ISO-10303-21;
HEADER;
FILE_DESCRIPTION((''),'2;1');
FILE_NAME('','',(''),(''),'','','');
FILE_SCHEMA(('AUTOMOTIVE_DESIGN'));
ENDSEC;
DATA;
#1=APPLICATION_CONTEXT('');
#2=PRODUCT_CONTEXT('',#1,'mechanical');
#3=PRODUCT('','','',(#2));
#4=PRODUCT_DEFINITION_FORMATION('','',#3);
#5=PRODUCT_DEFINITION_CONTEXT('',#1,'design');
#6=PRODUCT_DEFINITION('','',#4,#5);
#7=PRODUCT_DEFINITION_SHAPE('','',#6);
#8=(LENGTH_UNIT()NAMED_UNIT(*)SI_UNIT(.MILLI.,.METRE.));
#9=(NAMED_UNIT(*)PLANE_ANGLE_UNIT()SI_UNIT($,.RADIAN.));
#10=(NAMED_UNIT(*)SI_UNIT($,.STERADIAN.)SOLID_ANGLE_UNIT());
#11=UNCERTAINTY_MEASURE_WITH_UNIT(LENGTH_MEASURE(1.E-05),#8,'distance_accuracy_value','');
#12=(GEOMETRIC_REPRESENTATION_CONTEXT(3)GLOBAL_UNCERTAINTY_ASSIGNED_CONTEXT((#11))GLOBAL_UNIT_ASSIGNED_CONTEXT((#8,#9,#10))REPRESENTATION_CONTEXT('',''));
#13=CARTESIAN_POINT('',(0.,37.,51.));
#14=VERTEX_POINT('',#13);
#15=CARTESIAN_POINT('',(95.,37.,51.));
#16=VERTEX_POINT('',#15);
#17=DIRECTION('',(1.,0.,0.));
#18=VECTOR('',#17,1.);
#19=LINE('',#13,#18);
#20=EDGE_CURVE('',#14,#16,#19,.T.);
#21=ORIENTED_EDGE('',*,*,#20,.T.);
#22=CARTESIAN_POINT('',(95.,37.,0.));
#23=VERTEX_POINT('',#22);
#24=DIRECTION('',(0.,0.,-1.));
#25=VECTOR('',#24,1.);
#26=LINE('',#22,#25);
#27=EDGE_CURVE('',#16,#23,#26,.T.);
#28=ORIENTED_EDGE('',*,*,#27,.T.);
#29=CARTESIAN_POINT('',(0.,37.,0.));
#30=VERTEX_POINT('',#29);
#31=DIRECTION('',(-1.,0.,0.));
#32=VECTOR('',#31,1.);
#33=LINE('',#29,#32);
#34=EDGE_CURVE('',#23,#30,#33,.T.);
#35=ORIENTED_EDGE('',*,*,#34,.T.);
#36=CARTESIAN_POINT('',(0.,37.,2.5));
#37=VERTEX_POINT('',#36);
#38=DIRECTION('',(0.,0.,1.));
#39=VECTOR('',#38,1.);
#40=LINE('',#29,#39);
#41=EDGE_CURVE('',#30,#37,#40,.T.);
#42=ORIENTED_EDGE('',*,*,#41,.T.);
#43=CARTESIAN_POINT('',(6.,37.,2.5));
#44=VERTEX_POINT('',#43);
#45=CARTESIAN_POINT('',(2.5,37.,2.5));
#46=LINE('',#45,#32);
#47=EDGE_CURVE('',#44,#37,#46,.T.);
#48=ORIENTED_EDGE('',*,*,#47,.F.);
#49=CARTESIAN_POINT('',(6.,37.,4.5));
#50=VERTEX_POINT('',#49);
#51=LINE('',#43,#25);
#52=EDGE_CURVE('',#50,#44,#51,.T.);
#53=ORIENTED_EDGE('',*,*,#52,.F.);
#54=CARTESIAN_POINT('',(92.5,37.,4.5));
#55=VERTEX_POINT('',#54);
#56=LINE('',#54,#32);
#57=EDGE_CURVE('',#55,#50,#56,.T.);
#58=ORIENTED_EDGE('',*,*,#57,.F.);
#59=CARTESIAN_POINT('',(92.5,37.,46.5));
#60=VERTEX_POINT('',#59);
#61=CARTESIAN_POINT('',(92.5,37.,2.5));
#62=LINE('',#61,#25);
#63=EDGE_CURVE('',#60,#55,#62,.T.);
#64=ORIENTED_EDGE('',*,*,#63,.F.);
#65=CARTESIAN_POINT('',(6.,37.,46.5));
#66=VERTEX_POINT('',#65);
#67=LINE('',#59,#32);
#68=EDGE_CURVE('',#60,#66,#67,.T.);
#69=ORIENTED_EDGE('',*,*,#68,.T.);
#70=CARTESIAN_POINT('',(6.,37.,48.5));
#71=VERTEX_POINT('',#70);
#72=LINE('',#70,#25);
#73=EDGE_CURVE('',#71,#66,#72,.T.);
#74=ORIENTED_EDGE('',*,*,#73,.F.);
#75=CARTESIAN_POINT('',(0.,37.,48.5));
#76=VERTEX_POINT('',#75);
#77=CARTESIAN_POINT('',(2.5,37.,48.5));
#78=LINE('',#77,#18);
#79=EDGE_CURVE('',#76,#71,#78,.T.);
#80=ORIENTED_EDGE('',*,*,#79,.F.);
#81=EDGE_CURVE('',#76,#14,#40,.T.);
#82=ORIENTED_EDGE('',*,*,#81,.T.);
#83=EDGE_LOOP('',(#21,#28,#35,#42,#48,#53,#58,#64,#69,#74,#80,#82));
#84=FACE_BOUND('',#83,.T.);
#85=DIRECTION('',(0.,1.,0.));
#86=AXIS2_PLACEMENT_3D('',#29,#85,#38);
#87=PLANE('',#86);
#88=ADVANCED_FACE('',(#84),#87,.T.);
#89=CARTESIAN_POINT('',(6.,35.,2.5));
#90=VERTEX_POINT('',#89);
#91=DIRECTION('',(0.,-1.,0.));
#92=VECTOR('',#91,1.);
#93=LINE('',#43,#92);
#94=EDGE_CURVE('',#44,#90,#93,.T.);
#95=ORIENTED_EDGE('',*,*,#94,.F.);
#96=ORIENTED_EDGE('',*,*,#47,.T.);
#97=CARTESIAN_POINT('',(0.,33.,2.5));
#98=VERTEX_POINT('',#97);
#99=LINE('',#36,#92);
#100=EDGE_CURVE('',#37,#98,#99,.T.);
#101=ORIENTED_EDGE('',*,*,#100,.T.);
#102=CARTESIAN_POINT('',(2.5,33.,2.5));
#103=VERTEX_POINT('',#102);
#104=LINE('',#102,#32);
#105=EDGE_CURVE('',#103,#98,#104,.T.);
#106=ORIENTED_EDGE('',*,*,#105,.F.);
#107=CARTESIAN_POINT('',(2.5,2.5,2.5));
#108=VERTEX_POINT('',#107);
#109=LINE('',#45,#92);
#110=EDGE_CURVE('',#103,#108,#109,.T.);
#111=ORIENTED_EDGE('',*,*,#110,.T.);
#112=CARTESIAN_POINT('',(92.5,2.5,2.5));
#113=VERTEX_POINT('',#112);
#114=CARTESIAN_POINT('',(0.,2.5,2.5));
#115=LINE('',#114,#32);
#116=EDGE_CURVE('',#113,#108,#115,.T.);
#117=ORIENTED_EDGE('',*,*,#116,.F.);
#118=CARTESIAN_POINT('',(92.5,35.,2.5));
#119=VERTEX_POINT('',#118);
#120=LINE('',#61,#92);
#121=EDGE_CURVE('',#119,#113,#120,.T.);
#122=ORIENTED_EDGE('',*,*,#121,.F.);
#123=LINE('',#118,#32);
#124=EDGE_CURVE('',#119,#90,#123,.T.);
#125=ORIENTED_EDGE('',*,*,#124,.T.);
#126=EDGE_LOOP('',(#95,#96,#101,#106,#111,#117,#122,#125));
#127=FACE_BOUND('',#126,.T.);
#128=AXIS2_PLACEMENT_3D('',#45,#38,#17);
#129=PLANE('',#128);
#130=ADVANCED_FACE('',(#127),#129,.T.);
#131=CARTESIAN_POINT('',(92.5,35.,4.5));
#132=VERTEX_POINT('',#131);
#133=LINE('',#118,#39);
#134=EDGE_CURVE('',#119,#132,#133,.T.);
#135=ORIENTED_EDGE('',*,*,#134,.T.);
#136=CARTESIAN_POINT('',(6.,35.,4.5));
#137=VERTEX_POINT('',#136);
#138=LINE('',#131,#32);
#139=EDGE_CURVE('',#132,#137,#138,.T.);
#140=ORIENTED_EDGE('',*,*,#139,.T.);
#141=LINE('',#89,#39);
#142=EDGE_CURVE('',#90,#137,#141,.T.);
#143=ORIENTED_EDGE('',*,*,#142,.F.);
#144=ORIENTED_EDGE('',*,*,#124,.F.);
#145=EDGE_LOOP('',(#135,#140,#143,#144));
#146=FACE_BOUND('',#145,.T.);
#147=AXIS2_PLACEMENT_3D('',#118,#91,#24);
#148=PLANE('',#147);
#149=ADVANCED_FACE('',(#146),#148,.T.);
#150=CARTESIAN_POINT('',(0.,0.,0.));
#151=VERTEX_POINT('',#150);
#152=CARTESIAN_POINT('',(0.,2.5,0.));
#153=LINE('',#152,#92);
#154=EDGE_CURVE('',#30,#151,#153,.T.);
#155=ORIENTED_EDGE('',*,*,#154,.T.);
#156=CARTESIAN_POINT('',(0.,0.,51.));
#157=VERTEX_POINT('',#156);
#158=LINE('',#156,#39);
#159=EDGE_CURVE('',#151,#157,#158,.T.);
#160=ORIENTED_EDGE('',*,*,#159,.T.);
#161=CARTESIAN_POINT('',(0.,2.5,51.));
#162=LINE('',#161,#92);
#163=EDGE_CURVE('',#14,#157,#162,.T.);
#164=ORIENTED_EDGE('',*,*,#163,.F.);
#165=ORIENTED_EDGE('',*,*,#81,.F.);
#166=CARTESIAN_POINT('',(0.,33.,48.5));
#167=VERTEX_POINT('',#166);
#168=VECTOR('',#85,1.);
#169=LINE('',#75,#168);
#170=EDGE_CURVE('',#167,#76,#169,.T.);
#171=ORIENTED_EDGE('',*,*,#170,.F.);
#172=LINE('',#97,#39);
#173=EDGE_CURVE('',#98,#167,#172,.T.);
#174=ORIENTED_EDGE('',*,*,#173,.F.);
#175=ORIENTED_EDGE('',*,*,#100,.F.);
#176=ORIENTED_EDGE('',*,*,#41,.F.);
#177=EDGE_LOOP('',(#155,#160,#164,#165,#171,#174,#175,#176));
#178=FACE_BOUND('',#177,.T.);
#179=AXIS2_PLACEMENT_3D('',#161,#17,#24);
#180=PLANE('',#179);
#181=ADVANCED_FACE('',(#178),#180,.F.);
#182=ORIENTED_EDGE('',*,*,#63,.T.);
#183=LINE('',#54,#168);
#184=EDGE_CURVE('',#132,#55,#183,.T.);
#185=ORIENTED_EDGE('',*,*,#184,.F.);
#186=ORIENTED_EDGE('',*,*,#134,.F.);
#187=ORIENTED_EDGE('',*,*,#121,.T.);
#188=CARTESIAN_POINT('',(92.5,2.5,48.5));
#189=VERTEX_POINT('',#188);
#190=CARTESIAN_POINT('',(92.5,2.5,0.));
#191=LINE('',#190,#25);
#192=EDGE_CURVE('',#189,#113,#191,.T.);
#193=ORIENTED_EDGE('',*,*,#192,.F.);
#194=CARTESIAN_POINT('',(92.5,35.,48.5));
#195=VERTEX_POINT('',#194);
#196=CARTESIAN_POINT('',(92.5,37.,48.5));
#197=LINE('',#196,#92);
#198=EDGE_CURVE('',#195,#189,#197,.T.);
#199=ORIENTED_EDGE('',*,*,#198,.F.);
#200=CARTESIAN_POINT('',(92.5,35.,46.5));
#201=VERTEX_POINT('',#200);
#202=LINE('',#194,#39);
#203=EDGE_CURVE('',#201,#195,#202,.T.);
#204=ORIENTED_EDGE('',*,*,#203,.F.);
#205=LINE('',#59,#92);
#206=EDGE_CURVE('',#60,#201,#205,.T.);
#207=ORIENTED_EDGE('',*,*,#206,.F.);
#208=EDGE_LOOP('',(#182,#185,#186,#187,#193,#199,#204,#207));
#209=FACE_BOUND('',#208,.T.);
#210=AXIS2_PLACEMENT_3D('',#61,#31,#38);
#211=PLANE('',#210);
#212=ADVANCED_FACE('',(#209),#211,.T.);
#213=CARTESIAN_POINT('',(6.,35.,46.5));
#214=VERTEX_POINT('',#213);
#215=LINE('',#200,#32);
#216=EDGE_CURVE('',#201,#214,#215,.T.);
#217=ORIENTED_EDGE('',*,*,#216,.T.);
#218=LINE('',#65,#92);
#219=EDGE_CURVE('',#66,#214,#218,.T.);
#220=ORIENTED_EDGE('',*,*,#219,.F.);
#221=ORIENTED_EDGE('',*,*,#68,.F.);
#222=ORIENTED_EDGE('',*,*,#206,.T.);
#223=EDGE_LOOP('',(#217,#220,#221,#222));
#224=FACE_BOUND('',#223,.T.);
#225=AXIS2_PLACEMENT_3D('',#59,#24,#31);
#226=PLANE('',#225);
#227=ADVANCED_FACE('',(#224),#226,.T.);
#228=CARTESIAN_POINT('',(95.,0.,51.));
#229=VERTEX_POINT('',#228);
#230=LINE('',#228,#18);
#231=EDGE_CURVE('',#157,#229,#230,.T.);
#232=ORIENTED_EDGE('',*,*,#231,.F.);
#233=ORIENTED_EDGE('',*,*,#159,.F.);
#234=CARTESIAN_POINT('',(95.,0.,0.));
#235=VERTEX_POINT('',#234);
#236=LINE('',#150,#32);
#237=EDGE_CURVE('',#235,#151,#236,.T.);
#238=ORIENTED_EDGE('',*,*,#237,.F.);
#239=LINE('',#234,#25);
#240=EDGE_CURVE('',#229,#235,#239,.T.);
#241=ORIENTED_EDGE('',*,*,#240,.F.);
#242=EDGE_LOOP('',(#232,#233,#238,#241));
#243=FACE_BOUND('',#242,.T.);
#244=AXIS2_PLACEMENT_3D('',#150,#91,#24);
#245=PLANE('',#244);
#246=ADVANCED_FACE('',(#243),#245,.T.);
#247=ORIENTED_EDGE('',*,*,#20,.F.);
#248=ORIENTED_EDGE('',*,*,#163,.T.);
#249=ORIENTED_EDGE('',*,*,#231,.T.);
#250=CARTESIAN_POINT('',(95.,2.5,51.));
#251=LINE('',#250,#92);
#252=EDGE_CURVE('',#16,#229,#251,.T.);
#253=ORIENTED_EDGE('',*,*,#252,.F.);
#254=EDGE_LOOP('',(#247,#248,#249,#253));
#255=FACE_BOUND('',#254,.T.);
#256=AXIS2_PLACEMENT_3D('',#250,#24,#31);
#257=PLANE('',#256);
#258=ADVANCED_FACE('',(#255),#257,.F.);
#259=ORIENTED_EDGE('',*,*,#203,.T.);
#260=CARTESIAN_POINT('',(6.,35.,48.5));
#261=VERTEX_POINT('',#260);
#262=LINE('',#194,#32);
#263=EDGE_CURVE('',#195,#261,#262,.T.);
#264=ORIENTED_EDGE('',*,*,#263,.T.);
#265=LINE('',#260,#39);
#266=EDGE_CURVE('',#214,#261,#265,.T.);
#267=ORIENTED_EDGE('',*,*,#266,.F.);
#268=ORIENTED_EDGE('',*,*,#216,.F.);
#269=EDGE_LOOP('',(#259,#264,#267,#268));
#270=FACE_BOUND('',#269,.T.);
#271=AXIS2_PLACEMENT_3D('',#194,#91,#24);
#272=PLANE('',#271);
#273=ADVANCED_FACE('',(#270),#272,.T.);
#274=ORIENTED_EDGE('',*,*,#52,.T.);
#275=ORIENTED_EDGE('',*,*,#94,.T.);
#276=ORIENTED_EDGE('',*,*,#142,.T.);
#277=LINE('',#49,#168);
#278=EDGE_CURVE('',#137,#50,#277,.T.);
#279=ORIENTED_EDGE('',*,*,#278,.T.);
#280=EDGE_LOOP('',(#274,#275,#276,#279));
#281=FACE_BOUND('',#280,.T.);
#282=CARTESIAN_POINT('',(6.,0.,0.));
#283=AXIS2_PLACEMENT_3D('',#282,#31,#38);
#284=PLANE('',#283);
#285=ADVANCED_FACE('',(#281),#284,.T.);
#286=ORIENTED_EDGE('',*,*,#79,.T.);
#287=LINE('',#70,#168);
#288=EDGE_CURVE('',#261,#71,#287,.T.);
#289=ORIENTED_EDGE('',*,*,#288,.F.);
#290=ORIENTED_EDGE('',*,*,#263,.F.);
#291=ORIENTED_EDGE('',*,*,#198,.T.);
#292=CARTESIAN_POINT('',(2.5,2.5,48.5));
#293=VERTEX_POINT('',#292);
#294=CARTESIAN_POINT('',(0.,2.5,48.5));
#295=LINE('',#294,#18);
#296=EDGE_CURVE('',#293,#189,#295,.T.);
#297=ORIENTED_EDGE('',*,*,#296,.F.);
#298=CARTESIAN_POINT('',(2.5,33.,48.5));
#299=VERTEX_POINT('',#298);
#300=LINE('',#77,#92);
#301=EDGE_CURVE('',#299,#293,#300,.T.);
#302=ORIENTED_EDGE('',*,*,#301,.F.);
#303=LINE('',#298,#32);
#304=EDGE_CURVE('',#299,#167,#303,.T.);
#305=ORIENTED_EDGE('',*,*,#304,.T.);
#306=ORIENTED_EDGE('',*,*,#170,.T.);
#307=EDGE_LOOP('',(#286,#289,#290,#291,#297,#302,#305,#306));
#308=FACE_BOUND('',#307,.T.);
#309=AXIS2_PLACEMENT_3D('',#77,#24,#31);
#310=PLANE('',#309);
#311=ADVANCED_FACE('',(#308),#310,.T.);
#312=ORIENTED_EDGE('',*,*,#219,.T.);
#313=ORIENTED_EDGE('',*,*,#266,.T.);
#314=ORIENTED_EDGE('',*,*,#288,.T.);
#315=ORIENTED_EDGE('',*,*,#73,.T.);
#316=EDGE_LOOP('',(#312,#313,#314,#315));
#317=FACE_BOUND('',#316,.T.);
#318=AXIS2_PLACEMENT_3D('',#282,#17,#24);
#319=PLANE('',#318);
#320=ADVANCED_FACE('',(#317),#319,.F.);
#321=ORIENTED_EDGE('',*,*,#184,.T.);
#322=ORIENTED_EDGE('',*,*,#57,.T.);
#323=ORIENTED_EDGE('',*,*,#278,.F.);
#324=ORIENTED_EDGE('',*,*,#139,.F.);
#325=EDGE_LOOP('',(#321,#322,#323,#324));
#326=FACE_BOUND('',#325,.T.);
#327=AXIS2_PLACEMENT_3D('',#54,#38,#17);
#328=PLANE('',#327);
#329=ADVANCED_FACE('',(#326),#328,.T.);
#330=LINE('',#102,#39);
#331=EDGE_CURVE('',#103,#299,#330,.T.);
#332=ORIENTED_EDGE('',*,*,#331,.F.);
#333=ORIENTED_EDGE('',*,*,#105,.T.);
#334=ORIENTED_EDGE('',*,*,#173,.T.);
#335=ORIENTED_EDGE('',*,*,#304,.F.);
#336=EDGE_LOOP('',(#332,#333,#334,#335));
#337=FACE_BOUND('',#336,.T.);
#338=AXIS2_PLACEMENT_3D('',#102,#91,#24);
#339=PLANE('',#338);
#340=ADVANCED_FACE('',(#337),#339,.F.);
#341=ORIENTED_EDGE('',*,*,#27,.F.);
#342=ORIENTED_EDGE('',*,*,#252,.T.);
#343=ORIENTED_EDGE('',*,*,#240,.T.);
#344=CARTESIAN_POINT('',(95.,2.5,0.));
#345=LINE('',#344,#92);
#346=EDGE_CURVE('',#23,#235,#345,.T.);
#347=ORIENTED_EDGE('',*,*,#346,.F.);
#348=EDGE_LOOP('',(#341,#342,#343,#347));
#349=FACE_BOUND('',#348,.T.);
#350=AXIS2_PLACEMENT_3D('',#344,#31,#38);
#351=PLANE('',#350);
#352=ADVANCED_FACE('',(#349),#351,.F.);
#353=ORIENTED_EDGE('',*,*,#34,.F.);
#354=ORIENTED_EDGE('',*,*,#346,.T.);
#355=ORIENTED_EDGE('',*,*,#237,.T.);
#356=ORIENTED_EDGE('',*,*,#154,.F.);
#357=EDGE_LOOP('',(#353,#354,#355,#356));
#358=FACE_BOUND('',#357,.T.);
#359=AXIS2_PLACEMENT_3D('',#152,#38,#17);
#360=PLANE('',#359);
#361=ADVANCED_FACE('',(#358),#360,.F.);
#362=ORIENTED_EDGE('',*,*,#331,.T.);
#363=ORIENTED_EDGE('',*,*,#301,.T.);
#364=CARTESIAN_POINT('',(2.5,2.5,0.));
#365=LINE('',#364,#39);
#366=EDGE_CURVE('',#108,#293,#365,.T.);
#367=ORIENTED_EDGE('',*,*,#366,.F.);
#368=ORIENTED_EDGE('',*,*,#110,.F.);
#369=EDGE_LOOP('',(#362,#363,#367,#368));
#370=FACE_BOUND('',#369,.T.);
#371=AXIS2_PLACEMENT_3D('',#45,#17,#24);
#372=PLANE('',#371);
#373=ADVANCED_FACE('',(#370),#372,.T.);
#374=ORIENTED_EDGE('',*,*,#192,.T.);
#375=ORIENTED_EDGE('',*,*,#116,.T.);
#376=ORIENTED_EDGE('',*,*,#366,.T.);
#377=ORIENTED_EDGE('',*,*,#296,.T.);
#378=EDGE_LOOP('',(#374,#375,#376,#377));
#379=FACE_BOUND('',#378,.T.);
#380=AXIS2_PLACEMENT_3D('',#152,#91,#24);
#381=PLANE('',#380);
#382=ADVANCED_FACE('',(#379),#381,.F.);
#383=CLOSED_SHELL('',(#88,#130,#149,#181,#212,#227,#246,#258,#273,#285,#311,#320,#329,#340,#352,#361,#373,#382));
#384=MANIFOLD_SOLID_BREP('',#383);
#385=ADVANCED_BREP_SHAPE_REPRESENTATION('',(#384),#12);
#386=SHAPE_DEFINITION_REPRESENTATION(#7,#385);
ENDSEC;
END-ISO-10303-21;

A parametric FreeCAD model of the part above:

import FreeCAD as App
import Part
import Sketcher
from FreeCAD import Vector
Q = App.Units.Quantity

doc = App.newDocument("Part")
body = doc.addObject("PartDesign::Body", "Body")

sketch1 = body.newObject("Sketcher::SketchObject", "Sketch")
sketch1.AttachmentSupport = (doc.getObject("XZ_Plane"), [""])
sketch1.MapMode = "FlatFace"
sketch1.addGeometry(Part.LineSegment(Vector(0, 0, 0), Vector(0, 51, 0)), False)
sketch1.addGeometry(Part.LineSegment(Vector(0, 51, 0), Vector(95, 51, 0)), False)
sketch1.addGeometry(Part.LineSegment(Vector(95, 51, 0), Vector(95, 0, 0)), False)
sketch1.addGeometry(Part.LineSegment(Vector(95, 0, 0), Vector(0, 0, 0)), False)
sketch1.addConstraint(Sketcher.Constraint("Coincident", 0, 2, 1, 1))
sketch1.addConstraint(Sketcher.Constraint("Coincident", 1, 2, 2, 1))
sketch1.addConstraint(Sketcher.Constraint("Coincident", 2, 2, 3, 1))
sketch1.addConstraint(Sketcher.Constraint("Coincident", 3, 2, 0, 1))
sketch1.addConstraint(Sketcher.Constraint("Vertical", 0))
sketch1.addConstraint(Sketcher.Constraint("Horizontal", 1))
sketch1.addConstraint(Sketcher.Constraint("Vertical", 2))
sketch1.addConstraint(Sketcher.Constraint("Horizontal", 3))
sketch1.addConstraint(Sketcher.Constraint("Coincident", 3, 2, -1, 1))
sketch1.addConstraint(Sketcher.Constraint("DistanceX", 1, 1, 1, 2, Q("95 mm")))
sketch1.addConstraint(Sketcher.Constraint("DistanceY", 0, 1, 0, 2, Q("51 mm")))
pad1 = body.newObject("PartDesign::Pad", "Pad")
pad1.Profile = sketch1
pad1.Length = 2.5
pad1.Reversed = True

sketch2 = body.newObject("Sketcher::SketchObject", "Sketch001")
sketch2.AttachmentSupport = (doc.getObject("XZ_Plane"), [""])
sketch2.MapMode = "FlatFace"
sketch2.addGeometry(Part.LineSegment(Vector(0, 0, 0), Vector(0, 51, 0)), False)
sketch2.addGeometry(Part.LineSegment(Vector(0, 51, 0), Vector(95, 51, 0)), False)
sketch2.addGeometry(Part.LineSegment(Vector(95, 51, 0), Vector(95, 0, 0)), False)
sketch2.addGeometry(Part.LineSegment(Vector(95, 0, 0), Vector(0, 0, 0)), False)
sketch2.addGeometry(Part.LineSegment(Vector(92, 48, 0), Vector(2, 48, 0)), False)
sketch2.addGeometry(Part.LineSegment(Vector(2, 48, 0), Vector(2, 2, 0)), False)
sketch2.addGeometry(Part.LineSegment(Vector(2, 2, 0), Vector(92, 2, 0)), False)
sketch2.addGeometry(Part.LineSegment(Vector(92, 2, 0), Vector(92, 48, 0)), False)
sketch2.addConstraint(Sketcher.Constraint("Coincident", 0, 2, 1, 1))
sketch2.addConstraint(Sketcher.Constraint("Coincident", 1, 2, 2, 1))
sketch2.addConstraint(Sketcher.Constraint("Coincident", 2, 2, 3, 1))
sketch2.addConstraint(Sketcher.Constraint("Coincident", 3, 2, 0, 1))
sketch2.addConstraint(Sketcher.Constraint("Coincident", 4, 2, 5, 1))
sketch2.addConstraint(Sketcher.Constraint("Coincident", 5, 2, 6, 1))
sketch2.addConstraint(Sketcher.Constraint("Coincident", 6, 2, 7, 1))
sketch2.addConstraint(Sketcher.Constraint("Coincident", 7, 2, 4, 1))
sketch2.addConstraint(Sketcher.Constraint("Vertical", 0))
sketch2.addConstraint(Sketcher.Constraint("Horizontal", 1))
sketch2.addConstraint(Sketcher.Constraint("Vertical", 2))
sketch2.addConstraint(Sketcher.Constraint("Horizontal", 3))
sketch2.addConstraint(Sketcher.Constraint("Horizontal", 4))
sketch2.addConstraint(Sketcher.Constraint("Vertical", 5))
sketch2.addConstraint(Sketcher.Constraint("Horizontal", 6))
sketch2.addConstraint(Sketcher.Constraint("Vertical", 7))
sketch2.addConstraint(Sketcher.Constraint("Coincident", 3, 2, -1, 1))
sketch2.addConstraint(Sketcher.Constraint("DistanceX", 1, 1, 1, 2, Q("95 mm")))
sketch2.addConstraint(Sketcher.Constraint("DistanceX", 4, 2, 4, 1, Q("90 mm")))
sketch2.addConstraint(Sketcher.Constraint("DistanceY", 0, 1, 0, 2, Q("51 mm")))
sketch2.addConstraint(Sketcher.Constraint("DistanceY", 5, 2, 5, 1, Q("46 mm")))
sketch2.addConstraint(Sketcher.Constraint("DistanceX", -1, 1, 4, 2, Q("2.5 mm")))
sketch2.addConstraint(Sketcher.Constraint("DistanceY", -1, 1, 4, 2, Q("48.5 mm")))
pad2 = body.newObject("PartDesign::Pad", "Pad001")
pad2.Profile = sketch2
pad2.Length = 37
pad2.Reversed = True

sketch3 = body.newObject("Sketcher::SketchObject", "Sketch002")
sketch3.AttachmentSupport = (doc.getObject("YZ_Plane"), [""])
sketch3.MapMode = "FlatFace"
sketch3.addGeometry(Part.LineSegment(Vector(37, 2.5, 0), Vector(33, 2.5, 0)), False)
sketch3.addGeometry(Part.LineSegment(Vector(33, 2.5, 0), Vector(33, 48.5, 0)), False)
sketch3.addGeometry(Part.LineSegment(Vector(33, 48.5, 0), Vector(37, 48.5, 0)), False)
sketch3.addGeometry(Part.LineSegment(Vector(37, 48.5, 0), Vector(37, 2.5, 0)), False)
sketch3.addConstraint(Sketcher.Constraint("Coincident", 0, 2, 1, 1))
sketch3.addConstraint(Sketcher.Constraint("Coincident", 1, 2, 2, 1))
sketch3.addConstraint(Sketcher.Constraint("Coincident", 2, 2, 3, 1))
sketch3.addConstraint(Sketcher.Constraint("Coincident", 3, 2, 0, 1))
sketch3.addConstraint(Sketcher.Constraint("Horizontal", 0))
sketch3.addConstraint(Sketcher.Constraint("Vertical", 1))
sketch3.addConstraint(Sketcher.Constraint("Horizontal", 2))
sketch3.addConstraint(Sketcher.Constraint("Vertical", 3))
sketch3.addConstraint(Sketcher.Constraint("DistanceX", 0, 2, 0, 1, Q("4 mm")))
sketch3.addConstraint(Sketcher.Constraint("DistanceY", 1, 1, 1, 2, Q("46 mm")))
sketch3.addConstraint(Sketcher.Constraint("DistanceX", -1, 1, 0, 2, Q("33 mm")))
sketch3.addConstraint(Sketcher.Constraint("DistanceY", -1, 1, 0, 2, Q("2.5 mm")))
pocket1 = body.newObject("PartDesign::Pocket", "Pocket")
pocket1.Profile = sketch3
pocket1.Length = 2.5
pocket1.Reversed = True

sketch4 = body.newObject("Sketcher::SketchObject", "Sketch003")
sketch4.AttachmentSupport = (doc.getObject("YZ_Plane"), [""])
sketch4.MapMode = "FlatFace"
sketch4.AttachmentOffset = App.Placement(Vector(0, 0, 6), App.Rotation())
sketch4.addGeometry(Part.LineSegment(Vector(37, 2.5, 0), Vector(35, 2.5, 0)), False)
sketch4.addGeometry(Part.LineSegment(Vector(35, 2.5, 0), Vector(35, 4.5, 0)), False)
sketch4.addGeometry(Part.LineSegment(Vector(35, 4.5, 0), Vector(37, 4.5, 0)), False)
sketch4.addGeometry(Part.LineSegment(Vector(37, 4.5, 0), Vector(37, 2.5, 0)), False)
sketch4.addGeometry(Part.LineSegment(Vector(37, 46.5, 0), Vector(35, 46.5, 0)), False)
sketch4.addGeometry(Part.LineSegment(Vector(35, 46.5, 0), Vector(35, 48.5, 0)), False)
sketch4.addGeometry(Part.LineSegment(Vector(35, 48.5, 0), Vector(37, 48.5, 0)), False)
sketch4.addGeometry(Part.LineSegment(Vector(37, 48.5, 0), Vector(37, 46.5, 0)), False)
sketch4.addConstraint(Sketcher.Constraint("Coincident", 0, 2, 1, 1))
sketch4.addConstraint(Sketcher.Constraint("Coincident", 1, 2, 2, 1))
sketch4.addConstraint(Sketcher.Constraint("Coincident", 2, 2, 3, 1))
sketch4.addConstraint(Sketcher.Constraint("Coincident", 3, 2, 0, 1))
sketch4.addConstraint(Sketcher.Constraint("Coincident", 4, 2, 5, 1))
sketch4.addConstraint(Sketcher.Constraint("Coincident", 5, 2, 6, 1))
sketch4.addConstraint(Sketcher.Constraint("Coincident", 6, 2, 7, 1))
sketch4.addConstraint(Sketcher.Constraint("Coincident", 7, 2, 4, 1))
sketch4.addConstraint(Sketcher.Constraint("Horizontal", 0))
sketch4.addConstraint(Sketcher.Constraint("Vertical", 1))
sketch4.addConstraint(Sketcher.Constraint("Horizontal", 2))
sketch4.addConstraint(Sketcher.Constraint("Vertical", 3))
sketch4.addConstraint(Sketcher.Constraint("Horizontal", 4))
sketch4.addConstraint(Sketcher.Constraint("Vertical", 5))
sketch4.addConstraint(Sketcher.Constraint("Horizontal", 6))
sketch4.addConstraint(Sketcher.Constraint("Vertical", 7))
sketch4.addConstraint(Sketcher.Constraint("Vertical", 1, 2, 4, 2))
sketch4.addConstraint(Sketcher.Constraint("Vertical", 3, 2, 6, 2))
sketch4.addConstraint(Sketcher.Constraint("Equal", 6, 1))
sketch4.addConstraint(Sketcher.Constraint("Equal", 3, 5))
sketch4.addConstraint(Sketcher.Constraint("DistanceX", 0, 2, 0, 1, Q("2 mm")))
sketch4.addConstraint(Sketcher.Constraint("DistanceX", -1, 1, 0, 2, Q("35 mm")))
sketch4.addConstraint(Sketcher.Constraint("DistanceY", 1, 2, 4, 2, Q("42 mm")))
sketch4.addConstraint(Sketcher.Constraint("DistanceY", -1, 1, 0, 2, Q("2.5 mm")))
pad3 = body.newObject("PartDesign::Pad", "Pad002")
pad3.Profile = sketch4
pad3.Length = 86.5

doc.recompute()
